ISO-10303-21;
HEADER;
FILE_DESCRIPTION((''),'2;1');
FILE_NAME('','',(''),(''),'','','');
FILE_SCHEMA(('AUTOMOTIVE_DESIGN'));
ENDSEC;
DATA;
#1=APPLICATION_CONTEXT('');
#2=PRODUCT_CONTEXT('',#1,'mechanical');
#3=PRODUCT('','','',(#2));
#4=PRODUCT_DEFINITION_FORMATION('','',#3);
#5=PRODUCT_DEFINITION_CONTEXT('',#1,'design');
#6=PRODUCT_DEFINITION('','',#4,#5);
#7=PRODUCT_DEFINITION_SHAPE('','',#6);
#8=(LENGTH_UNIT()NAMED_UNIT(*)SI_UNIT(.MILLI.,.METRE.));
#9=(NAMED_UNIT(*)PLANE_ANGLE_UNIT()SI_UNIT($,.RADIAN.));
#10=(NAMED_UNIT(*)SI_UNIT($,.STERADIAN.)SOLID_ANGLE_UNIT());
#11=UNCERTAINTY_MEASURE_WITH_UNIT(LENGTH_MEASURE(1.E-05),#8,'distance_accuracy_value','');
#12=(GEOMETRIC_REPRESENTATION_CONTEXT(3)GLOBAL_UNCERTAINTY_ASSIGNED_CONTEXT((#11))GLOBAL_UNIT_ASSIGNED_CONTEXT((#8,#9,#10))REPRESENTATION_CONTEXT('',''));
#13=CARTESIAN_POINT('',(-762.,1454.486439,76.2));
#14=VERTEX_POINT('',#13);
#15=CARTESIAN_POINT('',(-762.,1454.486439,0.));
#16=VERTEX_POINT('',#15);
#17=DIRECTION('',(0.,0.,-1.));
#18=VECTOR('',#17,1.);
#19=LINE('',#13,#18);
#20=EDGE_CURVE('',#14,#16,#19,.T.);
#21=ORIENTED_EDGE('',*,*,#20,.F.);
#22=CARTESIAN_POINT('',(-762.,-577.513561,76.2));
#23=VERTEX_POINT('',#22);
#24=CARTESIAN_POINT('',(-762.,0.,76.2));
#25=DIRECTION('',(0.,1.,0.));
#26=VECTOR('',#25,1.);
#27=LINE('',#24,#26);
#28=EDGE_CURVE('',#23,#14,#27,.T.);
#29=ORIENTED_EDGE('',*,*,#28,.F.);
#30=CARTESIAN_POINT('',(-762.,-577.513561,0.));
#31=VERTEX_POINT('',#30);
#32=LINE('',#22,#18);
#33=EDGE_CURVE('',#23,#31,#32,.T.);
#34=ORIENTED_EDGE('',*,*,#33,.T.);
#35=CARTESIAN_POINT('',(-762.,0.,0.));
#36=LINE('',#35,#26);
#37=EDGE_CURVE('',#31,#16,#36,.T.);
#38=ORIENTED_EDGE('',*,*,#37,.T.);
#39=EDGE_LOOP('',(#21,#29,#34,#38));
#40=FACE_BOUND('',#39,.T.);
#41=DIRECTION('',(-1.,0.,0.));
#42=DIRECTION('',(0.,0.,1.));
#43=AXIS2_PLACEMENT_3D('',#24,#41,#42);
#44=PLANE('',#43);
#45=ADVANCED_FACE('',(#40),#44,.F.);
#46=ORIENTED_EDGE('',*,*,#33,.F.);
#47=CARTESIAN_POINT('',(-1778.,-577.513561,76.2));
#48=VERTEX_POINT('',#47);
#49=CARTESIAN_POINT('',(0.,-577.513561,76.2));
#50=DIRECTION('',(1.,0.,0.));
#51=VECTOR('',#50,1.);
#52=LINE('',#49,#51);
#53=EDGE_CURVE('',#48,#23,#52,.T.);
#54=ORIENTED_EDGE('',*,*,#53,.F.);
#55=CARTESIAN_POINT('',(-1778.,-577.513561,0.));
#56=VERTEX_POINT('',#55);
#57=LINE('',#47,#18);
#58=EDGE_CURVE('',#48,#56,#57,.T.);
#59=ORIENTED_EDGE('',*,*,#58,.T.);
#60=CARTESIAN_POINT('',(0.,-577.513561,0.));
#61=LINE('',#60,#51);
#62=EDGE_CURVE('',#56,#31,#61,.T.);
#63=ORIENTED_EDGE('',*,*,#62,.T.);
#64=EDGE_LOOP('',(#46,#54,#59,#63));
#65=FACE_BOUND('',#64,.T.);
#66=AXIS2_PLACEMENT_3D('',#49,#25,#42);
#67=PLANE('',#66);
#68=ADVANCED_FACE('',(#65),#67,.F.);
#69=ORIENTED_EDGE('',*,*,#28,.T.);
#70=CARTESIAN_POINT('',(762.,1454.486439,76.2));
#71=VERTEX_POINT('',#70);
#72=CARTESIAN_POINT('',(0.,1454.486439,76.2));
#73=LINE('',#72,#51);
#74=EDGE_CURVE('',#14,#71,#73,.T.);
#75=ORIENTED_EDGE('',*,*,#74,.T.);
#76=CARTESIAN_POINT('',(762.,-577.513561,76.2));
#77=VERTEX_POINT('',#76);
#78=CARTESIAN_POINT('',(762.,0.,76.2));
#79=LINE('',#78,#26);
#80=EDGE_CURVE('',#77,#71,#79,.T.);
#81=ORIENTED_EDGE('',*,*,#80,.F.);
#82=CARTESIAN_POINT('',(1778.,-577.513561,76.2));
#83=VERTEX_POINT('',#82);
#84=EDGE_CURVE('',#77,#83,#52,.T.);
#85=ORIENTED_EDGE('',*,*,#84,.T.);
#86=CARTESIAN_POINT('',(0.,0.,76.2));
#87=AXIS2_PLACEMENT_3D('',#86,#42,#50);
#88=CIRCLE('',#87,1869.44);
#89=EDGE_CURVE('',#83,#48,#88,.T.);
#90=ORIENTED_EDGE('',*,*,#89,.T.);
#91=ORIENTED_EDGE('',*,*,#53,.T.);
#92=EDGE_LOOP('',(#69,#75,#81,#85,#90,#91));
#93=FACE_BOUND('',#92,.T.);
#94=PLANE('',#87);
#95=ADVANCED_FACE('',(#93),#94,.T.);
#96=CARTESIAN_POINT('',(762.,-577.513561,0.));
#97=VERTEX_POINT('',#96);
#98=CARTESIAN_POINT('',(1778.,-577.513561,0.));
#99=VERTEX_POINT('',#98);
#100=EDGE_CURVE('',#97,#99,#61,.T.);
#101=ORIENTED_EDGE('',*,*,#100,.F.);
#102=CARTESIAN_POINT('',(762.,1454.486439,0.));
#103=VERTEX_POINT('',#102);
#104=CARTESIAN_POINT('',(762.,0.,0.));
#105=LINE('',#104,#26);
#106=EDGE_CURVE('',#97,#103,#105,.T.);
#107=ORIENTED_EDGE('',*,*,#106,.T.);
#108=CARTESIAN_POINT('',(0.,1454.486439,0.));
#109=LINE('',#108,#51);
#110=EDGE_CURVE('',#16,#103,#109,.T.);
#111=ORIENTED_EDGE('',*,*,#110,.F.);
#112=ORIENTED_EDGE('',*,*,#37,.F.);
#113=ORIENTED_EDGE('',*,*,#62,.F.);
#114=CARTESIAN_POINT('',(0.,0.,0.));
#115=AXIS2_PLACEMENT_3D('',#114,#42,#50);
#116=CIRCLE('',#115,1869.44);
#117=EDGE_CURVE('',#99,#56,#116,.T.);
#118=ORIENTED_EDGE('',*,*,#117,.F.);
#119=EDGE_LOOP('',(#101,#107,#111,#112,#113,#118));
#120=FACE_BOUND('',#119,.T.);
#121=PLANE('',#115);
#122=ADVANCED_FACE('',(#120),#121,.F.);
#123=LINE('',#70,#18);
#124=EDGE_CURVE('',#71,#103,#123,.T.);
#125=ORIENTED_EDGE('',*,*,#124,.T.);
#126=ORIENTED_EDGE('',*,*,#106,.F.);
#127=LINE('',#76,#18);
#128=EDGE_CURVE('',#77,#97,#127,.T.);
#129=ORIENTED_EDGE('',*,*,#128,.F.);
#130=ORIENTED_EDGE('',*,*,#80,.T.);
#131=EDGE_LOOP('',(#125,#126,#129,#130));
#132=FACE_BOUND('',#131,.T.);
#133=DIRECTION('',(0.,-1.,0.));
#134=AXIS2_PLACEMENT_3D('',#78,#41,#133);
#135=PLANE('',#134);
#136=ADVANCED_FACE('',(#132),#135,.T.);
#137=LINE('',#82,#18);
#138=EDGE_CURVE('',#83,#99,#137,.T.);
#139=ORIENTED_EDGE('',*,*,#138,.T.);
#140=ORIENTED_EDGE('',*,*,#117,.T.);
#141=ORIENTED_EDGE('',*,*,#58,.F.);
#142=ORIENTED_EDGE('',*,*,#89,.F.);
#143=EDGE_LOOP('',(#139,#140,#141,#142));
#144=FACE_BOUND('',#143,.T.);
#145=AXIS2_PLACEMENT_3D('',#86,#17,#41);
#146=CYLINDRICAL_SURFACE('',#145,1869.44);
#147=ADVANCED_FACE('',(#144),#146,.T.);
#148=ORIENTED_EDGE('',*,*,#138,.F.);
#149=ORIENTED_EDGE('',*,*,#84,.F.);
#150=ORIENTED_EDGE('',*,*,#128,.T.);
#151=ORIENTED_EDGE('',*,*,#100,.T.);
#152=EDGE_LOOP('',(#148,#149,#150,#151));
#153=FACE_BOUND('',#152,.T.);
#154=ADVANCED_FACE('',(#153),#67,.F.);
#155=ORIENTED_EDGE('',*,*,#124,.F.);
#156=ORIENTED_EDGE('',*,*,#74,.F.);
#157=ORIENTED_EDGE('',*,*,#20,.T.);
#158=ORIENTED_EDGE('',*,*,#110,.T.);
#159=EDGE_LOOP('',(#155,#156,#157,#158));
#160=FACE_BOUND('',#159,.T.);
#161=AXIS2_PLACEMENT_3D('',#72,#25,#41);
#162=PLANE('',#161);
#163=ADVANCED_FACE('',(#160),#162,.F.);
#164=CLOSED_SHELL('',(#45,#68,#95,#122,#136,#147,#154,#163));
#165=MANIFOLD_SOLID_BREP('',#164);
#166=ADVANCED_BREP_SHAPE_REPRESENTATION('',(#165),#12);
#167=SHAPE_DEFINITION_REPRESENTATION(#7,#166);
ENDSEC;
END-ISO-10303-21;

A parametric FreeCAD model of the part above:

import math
import FreeCAD as App
import Part
import Sketcher
from FreeCAD import Vector
Q = App.Units.Quantity

doc = App.newDocument("Part")
body = doc.addObject("PartDesign::Body", "Body")

sketch1 = body.newObject("Sketcher::SketchObject", "Sketch")
sketch1.AttachmentSupport = (doc.getObject("XY_Plane"), [""])
sketch1.MapMode = "FlatFace"
sketch1.addGeometry(Part.LineSegment(Vector(762, 1454.486439, 0), Vector(762, -577.513561, 0)), False)
sketch1.addGeometry(Part.LineSegment(Vector(762, -577.513561, 0), Vector(1778, -577.513561, 0)), False)
sketch1.addGeometry(Part.ArcOfCircle(Part.Circle(Vector(0, 0, 0), Vector(0, 0, 1), 1869.44), math.radians(-17.994355), math.radians(90)), False)
sketch1.addGeometry(Part.ArcOfCircle(Part.Circle(Vector(0, 0, 0), Vector(0, 0, 1), 1869.44), math.radians(90), math.radians(197.994355)), False)
sketch1.addGeometry(Part.LineSegment(Vector(-1778, -577.513561, 0), Vector(-762, -577.513561, 0)), False)
sketch1.addGeometry(Part.LineSegment(Vector(-762, -577.513561, 0), Vector(-762, 1454.486439, 0)), False)
sketch1.addGeometry(Part.LineSegment(Vector(-762, 1454.486439, 0), Vector(762, 1454.486439, 0)), False)
sketch1.addConstraint(Sketcher.Constraint("Coincident", 0, 2, 1, 1))
sketch1.addConstraint(Sketcher.Constraint("Coincident", 1, 2, 2, 1))
sketch1.addConstraint(Sketcher.Constraint("Coincident", 2, 2, 3, 1))
sketch1.addConstraint(Sketcher.Constraint("Coincident", 3, 2, 4, 1))
sketch1.addConstraint(Sketcher.Constraint("Coincident", 4, 2, 5, 1))
sketch1.addConstraint(Sketcher.Constraint("Coincident", 5, 2, 6, 1))
sketch1.addConstraint(Sketcher.Constraint("Coincident", 6, 2, 0, 1))
sketch1.addConstraint(Sketcher.Constraint("Vertical", 0))
sketch1.addConstraint(Sketcher.Constraint("Horizontal", 1))
sketch1.addConstraint(Sketcher.Constraint("Horizontal", 4))
sketch1.addConstraint(Sketcher.Constraint("Vertical", 5))
sketch1.addConstraint(Sketcher.Constraint("Horizontal", 6))
sketch1.addConstraint(Sketcher.Constraint("Coincident", 2, 3, -1, 1))
sketch1.addConstraint(Sketcher.Constraint("Coincident", 3, 3, -1, 1))
sketch1.addConstraint(Sketcher.Constraint("Symmetric", 0, 2, 4, 2, -2))
sketch1.addConstraint(Sketcher.Constraint("PointOnObject", 2, 2, -2))
sketch1.addConstraint(Sketcher.Constraint("Radius", 2, Q("73.6 in")))
sketch1.addConstraint(Sketcher.Constraint("DistanceX", 1, 1, 1, 2, Q("40 in")))
sketch1.addConstraint(Sketcher.Constraint("DistanceX", 6, 1, 6, 2, Q("60 in")))
sketch1.addConstraint(Sketcher.Constraint("DistanceY", 0, 2, 0, 1, Q("80 in")))
pad1 = body.newObject("PartDesign::Pad", "Pad")
pad1.Profile = sketch1
pad1.Length = Q("3 in")

doc.recompute()
